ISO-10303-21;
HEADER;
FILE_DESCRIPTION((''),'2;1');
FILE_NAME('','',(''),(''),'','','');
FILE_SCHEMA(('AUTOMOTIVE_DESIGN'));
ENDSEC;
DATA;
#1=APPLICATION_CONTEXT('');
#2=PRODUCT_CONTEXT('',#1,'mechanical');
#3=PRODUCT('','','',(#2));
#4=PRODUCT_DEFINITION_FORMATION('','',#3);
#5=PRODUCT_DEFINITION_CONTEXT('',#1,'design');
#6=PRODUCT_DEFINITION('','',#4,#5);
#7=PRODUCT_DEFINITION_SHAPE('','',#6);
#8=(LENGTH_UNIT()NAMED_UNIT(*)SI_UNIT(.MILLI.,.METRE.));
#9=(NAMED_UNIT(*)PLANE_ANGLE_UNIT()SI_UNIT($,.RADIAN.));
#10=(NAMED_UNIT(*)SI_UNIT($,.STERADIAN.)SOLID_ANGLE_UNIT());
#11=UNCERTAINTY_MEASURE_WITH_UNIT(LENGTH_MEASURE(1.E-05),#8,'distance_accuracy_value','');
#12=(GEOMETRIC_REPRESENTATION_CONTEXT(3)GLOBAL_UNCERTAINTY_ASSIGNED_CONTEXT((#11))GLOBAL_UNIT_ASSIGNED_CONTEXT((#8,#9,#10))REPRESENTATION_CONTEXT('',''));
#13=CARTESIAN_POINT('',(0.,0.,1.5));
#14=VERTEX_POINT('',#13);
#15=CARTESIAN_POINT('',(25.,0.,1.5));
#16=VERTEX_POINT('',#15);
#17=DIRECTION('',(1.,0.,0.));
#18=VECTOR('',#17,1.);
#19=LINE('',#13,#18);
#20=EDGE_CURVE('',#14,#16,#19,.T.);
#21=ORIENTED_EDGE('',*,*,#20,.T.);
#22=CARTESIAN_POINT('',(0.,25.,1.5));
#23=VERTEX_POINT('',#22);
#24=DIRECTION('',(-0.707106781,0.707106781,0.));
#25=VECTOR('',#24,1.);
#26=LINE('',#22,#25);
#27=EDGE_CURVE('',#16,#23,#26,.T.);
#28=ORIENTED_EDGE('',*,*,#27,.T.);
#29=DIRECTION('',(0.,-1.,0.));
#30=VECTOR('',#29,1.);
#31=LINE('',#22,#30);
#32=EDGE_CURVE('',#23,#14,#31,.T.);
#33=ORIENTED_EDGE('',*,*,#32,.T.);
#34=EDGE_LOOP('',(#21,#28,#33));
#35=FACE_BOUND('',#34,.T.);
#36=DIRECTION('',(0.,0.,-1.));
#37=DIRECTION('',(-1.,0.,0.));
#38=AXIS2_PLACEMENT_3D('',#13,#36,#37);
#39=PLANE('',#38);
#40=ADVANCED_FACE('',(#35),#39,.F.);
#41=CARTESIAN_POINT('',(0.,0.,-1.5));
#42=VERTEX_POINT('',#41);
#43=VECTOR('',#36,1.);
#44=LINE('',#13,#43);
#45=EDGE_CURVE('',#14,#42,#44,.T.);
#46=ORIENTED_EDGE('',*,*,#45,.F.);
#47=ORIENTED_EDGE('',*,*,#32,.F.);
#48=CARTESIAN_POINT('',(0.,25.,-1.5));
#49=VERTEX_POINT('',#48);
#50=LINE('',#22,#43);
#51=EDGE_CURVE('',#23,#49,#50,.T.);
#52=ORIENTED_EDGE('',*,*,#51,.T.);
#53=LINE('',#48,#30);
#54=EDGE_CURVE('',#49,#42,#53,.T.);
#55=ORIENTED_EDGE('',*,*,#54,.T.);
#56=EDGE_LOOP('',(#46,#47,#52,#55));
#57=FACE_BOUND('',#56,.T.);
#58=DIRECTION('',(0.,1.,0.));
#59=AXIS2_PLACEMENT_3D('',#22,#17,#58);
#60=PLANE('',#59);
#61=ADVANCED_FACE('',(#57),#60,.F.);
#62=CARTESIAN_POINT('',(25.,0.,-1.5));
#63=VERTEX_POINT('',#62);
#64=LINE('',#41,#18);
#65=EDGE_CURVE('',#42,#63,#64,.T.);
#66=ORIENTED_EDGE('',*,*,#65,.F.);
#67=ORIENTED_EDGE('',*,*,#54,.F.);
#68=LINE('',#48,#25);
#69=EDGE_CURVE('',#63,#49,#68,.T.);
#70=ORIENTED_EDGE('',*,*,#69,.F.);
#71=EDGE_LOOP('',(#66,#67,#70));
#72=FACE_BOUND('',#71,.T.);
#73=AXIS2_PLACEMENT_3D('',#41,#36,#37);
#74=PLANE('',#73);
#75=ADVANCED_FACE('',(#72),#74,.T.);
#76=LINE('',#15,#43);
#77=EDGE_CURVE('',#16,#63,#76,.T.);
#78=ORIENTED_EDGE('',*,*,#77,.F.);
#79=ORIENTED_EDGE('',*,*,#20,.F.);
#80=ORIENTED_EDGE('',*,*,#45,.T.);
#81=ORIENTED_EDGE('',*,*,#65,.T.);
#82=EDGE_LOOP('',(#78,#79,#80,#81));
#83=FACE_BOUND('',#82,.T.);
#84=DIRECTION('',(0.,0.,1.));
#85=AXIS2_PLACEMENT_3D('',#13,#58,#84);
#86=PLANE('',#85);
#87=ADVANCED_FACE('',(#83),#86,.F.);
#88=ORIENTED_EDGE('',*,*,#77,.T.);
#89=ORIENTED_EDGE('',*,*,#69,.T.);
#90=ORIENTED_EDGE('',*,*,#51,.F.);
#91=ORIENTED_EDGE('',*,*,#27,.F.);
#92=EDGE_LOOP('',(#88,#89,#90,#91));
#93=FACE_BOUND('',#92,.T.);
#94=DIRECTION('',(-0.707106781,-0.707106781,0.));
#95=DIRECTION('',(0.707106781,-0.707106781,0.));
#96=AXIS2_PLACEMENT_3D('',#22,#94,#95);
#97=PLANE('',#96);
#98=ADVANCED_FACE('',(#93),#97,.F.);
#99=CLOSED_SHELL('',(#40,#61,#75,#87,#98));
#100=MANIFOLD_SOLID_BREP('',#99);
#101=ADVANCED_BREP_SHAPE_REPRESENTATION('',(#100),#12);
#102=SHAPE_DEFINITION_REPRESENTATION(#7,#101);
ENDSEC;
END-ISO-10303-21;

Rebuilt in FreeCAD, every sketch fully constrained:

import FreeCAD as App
import Part
import Sketcher
Q = App.Units.Quantity

doc = App.newDocument("Part")
body = doc.addObject("PartDesign::Body", "Body")

# Sketch on XY plane
sketch1 = doc.addObject("Sketcher::SketchObject", "Sketch")
body.addObject(sketch1)
sketch1.AttachmentSupport = (doc.XY_Plane, [""])
sketch1.MapMode = "FlatFace"
sketch1.addGeometry(Part.LineSegment(App.Vector(25, 0, 0), App.Vector(0, 25, 0)), False)
sketch1.addGeometry(Part.LineSegment(App.Vector(0, 25, 0), App.Vector(0, 0, 0)), False)
sketch1.addGeometry(Part.LineSegment(App.Vector(0, 0, 0), App.Vector(25, 0, 0)), False)
sketch1.addConstraint(Sketcher.Constraint("Coincident", 0, 2, 1, 1))
sketch1.addConstraint(Sketcher.Constraint("Coincident", 1, 2, 2, 1))
sketch1.addConstraint(Sketcher.Constraint("Coincident", 2, 2, 0, 1))
sketch1.addConstraint(Sketcher.Constraint("Vertical", 1))
sketch1.addConstraint(Sketcher.Constraint("Horizontal", 2))
sketch1.addConstraint(Sketcher.Constraint("Coincident", 1, 2, -1, 1))
sketch1.addConstraint(Sketcher.Constraint("Equal", 2, 1))
sketch1.addConstraint(Sketcher.Constraint("DistanceX", 2, 1, 2, 2, Q("25 mm")))
pad1 = doc.addObject("PartDesign::Pad", "Pad")
body.addObject(pad1)
pad1.Profile = sketch1
pad1.Length = 3
pad1.Midplane = True

doc.recompute()
